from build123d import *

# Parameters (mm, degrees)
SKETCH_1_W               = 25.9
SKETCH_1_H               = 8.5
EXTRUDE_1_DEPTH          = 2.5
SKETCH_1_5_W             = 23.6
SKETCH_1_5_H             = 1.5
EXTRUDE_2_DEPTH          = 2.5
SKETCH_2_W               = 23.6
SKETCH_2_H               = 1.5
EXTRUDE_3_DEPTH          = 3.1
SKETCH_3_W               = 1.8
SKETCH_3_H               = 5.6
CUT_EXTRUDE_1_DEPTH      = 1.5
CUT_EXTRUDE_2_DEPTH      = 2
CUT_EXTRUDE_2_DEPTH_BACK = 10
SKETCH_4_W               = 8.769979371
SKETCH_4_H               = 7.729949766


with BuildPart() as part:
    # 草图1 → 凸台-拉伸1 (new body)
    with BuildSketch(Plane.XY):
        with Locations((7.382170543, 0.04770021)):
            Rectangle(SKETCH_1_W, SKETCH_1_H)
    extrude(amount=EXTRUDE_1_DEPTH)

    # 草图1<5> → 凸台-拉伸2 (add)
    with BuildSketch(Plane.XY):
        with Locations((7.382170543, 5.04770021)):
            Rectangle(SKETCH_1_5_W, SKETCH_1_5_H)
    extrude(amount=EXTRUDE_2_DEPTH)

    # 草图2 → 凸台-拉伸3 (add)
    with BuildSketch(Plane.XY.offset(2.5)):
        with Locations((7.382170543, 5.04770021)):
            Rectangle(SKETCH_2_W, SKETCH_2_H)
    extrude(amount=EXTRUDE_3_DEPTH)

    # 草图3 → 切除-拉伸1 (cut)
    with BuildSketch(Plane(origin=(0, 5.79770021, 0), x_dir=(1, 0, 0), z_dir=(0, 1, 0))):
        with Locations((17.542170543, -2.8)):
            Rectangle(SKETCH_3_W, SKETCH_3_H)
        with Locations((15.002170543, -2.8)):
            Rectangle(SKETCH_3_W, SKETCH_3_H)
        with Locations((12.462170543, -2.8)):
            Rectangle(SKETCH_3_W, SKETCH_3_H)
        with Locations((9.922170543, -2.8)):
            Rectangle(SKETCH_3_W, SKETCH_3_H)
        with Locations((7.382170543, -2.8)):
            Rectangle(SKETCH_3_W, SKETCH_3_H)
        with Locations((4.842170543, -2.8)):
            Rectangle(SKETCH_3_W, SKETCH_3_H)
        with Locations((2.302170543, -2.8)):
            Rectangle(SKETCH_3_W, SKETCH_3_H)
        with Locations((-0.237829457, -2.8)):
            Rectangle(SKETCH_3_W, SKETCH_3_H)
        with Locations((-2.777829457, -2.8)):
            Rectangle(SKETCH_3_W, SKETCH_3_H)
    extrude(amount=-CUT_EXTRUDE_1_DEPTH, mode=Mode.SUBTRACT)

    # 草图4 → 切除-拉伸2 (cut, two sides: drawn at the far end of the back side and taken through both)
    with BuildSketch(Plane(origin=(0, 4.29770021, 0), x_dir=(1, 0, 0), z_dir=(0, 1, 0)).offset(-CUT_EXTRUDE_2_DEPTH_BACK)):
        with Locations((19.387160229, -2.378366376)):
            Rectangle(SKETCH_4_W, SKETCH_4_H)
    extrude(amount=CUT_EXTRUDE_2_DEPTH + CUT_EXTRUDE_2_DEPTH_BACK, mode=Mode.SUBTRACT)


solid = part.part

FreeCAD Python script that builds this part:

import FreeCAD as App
import Part
import Sketcher
Q = App.Units.Quantity

doc = App.newDocument("Part")
params = doc.addObject("Spreadsheet::Sheet", "Params")
for row, (alias, value) in enumerate([
    ("sketch1_width", "25.9 mm"),
    ("sketch1_height", "8.5 mm"),
    ("pad1_length", "2.5 mm"),
    ("sketch2_width", "23.6 mm"),
    ("sketch2_height", "1.5 mm"),
    ("pad2_length", "2.5 mm"),
    ("sketch3_width", "23.6 mm"),
    ("sketch3_height", "1.5 mm"),
    ("pad3_length", "3.1 mm"),
    ("sketch4_width", "1.8 mm"),
    ("sketch4_height", "5.6 mm"),
    ("pocket1_length", "1.5 mm"),
], start=1):
    params.set(f"A{row}", alias)
    params.set(f"B{row}", "=" + value)
    params.setAlias(f"B{row}", alias)

body = doc.addObject("PartDesign::Body", "Body")

# Sketch on XY plane
sketch1 = body.newObject("Sketcher::SketchObject", "Sketch")
sketch1.AttachmentSupport = (doc.getObject("XY_Plane"), [""])
sketch1.MapMode = "FlatFace"
sketch1.addGeometry(Part.LineSegment(App.Vector(-5.567829, 4.2977, 0), App.Vector(-5.567829, -4.2023, 0)), False)
sketch1.addGeometry(Part.LineSegment(App.Vector(-5.567829, -4.2023, 0), App.Vector(20.332171, -4.2023, 0)), False)
sketch1.addGeometry(Part.LineSegment(App.Vector(20.332171, -4.2023, 0), App.Vector(20.332171, 4.2977, 0)), False)
sketch1.addGeometry(Part.LineSegment(App.Vector(20.332171, 4.2977, 0), App.Vector(-5.567829, 4.2977, 0)), False)
sketch1.addConstraint(Sketcher.Constraint("Coincident", 0, 2, 1, 1))
sketch1.addConstraint(Sketcher.Constraint("Coincident", 1, 2, 2, 1))
sketch1.addConstraint(Sketcher.Constraint("Coincident", 2, 2, 3, 1))
sketch1.addConstraint(Sketcher.Constraint("Coincident", 3, 2, 0, 1))
sketch1.addConstraint(Sketcher.Constraint("Vertical", 0))
sketch1.addConstraint(Sketcher.Constraint("Horizontal", 1))
sketch1.addConstraint(Sketcher.Constraint("Vertical", 2))
sketch1.addConstraint(Sketcher.Constraint("Horizontal", 3))
sketch1.addConstraint(Sketcher.Constraint("DistanceX", 1, 1, 1, 2, Q("25.9 mm")))
sketch1.addConstraint(Sketcher.Constraint("DistanceY", 0, 2, 0, 1, Q("8.5 mm")))
sketch1.addConstraint(Sketcher.Constraint("DistanceY", 0, 2, -1, 1, Q("4.2023 mm")))
sketch1.addConstraint(Sketcher.Constraint("DistanceX", 0, 2, -1, 1, Q("5.567829 mm")))
sketch1.setExpression("Constraints[8]", "Params.sketch1_width")
sketch1.setExpression("Constraints[9]", "Params.sketch1_height")
pad1 = body.newObject("PartDesign::Pad", "Pad")
pad1.Profile = sketch1
pad1.setExpression("Length", "Params.pad1_length")

# Sketch on XY plane
sketch2 = body.newObject("Sketcher::SketchObject", "Sketch001")
sketch2.AttachmentSupport = (doc.getObject("XY_Plane"), [""])
sketch2.MapMode = "FlatFace"
sketch2.addGeometry(Part.LineSegment(App.Vector(-4.417829, 5.7977, 0), App.Vector(-4.417829, 4.2977, 0)), False)
sketch2.addGeometry(Part.LineSegment(App.Vector(-4.417829, 4.2977, 0), App.Vector(19.182171, 4.2977, 0)), False)
sketch2.addGeometry(Part.LineSegment(App.Vector(19.182171, 4.2977, 0), App.Vector(19.182171, 5.7977, 0)), False)
sketch2.addGeometry(Part.LineSegment(App.Vector(19.182171, 5.7977, 0), App.Vector(-4.417829, 5.7977, 0)), False)
sketch2.addConstraint(Sketcher.Constraint("Coincident", 0, 2, 1, 1))
sketch2.addConstraint(Sketcher.Constraint("Coincident", 1, 2, 2, 1))
sketch2.addConstraint(Sketcher.Constraint("Coincident", 2, 2, 3, 1))
sketch2.addConstraint(Sketcher.Constraint("Coincident", 3, 2, 0, 1))
sketch2.addConstraint(Sketcher.Constraint("Vertical", 0))
sketch2.addConstraint(Sketcher.Constraint("Horizontal", 1))
sketch2.addConstraint(Sketcher.Constraint("Vertical", 2))
sketch2.addConstraint(Sketcher.Constraint("Horizontal", 3))
sketch2.addConstraint(Sketcher.Constraint("DistanceX", 1, 1, 1, 2, Q("23.6 mm")))
sketch2.addConstraint(Sketcher.Constraint("DistanceY", 0, 2, 0, 1, Q("1.5 mm")))
sketch2.addConstraint(Sketcher.Constraint("DistanceY", -1, 1, 0, 2, Q("4.2977 mm")))
sketch2.addConstraint(Sketcher.Constraint("DistanceX", 0, 2, -1, 1, Q("4.417829 mm")))
sketch2.setExpression("Constraints[8]", "Params.sketch2_width")
sketch2.setExpression("Constraints[9]", "Params.sketch2_height")
pad2 = body.newObject("PartDesign::Pad", "Pad001")
pad2.Profile = sketch2
pad2.setExpression("Length", "Params.pad2_length")

# Sketch on XY plane
sketch3 = body.newObject("Sketcher::SketchObject", "Sketch002")
sketch3.AttachmentSupport = (doc.getObject("XY_Plane"), [""])
sketch3.MapMode = "FlatFace"
sketch3.AttachmentOffset = App.Placement(App.Vector(0, 0, 2.5), App.Rotation())
sketch3.addGeometry(Part.LineSegment(App.Vector(-4.417829, 5.7977, 0), App.Vector(-4.417829, 4.2977, 0)), False)
sketch3.addGeometry(Part.LineSegment(App.Vector(-4.417829, 4.2977, 0), App.Vector(19.182171, 4.2977, 0)), False)
sketch3.addGeometry(Part.LineSegment(App.Vector(19.182171, 4.2977, 0), App.Vector(19.182171, 5.7977, 0)), False)
sketch3.addGeometry(Part.LineSegment(App.Vector(19.182171, 5.7977, 0), App.Vector(-4.417829, 5.7977, 0)), False)
sketch3.addConstraint(Sketcher.Constraint("Coincident", 0, 2, 1, 1))
sketch3.addConstraint(Sketcher.Constraint("Coincident", 1, 2, 2, 1))
sketch3.addConstraint(Sketcher.Constraint("Coincident", 2, 2, 3, 1))
sketch3.addConstraint(Sketcher.Constraint("Coincident", 3, 2, 0, 1))
sketch3.addConstraint(Sketcher.Constraint("Vertical", 0))
sketch3.addConstraint(Sketcher.Constraint("Horizontal", 1))
sketch3.addConstraint(Sketcher.Constraint("Vertical", 2))
sketch3.addConstraint(Sketcher.Constraint("Horizontal", 3))
sketch3.addConstraint(Sketcher.Constraint("DistanceX", 1, 1, 1, 2, Q("23.6 mm")))
sketch3.addConstraint(Sketcher.Constraint("DistanceY", 0, 2, 0, 1, Q("1.5 mm")))
sketch3.addConstraint(Sketcher.Constraint("DistanceY", -1, 1, 0, 2, Q("4.2977 mm")))
sketch3.addConstraint(Sketcher.Constraint("DistanceX", 0, 2, -1, 1, Q("4.417829 mm")))
sketch3.setExpression("Constraints[8]", "Params.sketch3_width")
sketch3.setExpression("Constraints[9]", "Params.sketch3_height")
pad3 = body.newObject("PartDesign::Pad", "Pad002")
pad3.Profile = sketch3
pad3.setExpression("Length", "Params.pad3_length")

# Sketch on XZ plane
sketch4 = body.newObject("Sketcher::SketchObject", "Sketch003")
sketch4.AttachmentSupport = (doc.getObject("XZ_Plane"), [""])
sketch4.MapMode = "FlatFace"
sketch4.AttachmentOffset = App.Placement(App.Vector(0, 0, -5.7977), App.Rotation())
sketch4.addGeometry(Part.LineSegment(App.Vector(16.642171, 0, 0), App.Vector(16.642171, 5.6, 0)), False)
sketch4.addGeometry(Part.LineSegment(App.Vector(16.642171, 5.6, 0), App.Vector(18.442171, 5.6, 0)), False)
sketch4.addGeometry(Part.LineSegment(App.Vector(18.442171, 5.6, 0), App.Vector(18.442171, 0, 0)), False)
sketch4.addGeometry(Part.LineSegment(App.Vector(18.442171, 0, 0), App.Vector(16.642171, 0, 0)), False)
sketch4.addGeometry(Part.LineSegment(App.Vector(14.102171, 0, 0), App.Vector(14.102171, 5.6, 0)), False)
sketch4.addGeometry(Part.LineSegment(App.Vector(14.102171, 5.6, 0), App.Vector(15.902171, 5.6, 0)), False)
sketch4.addGeometry(Part.LineSegment(App.Vector(15.902171, 5.6, 0), App.Vector(15.902171, 0, 0)), False)
sketch4.addGeometry(Part.LineSegment(App.Vector(15.902171, 0, 0), App.Vector(14.102171, 0, 0)), False)
sketch4.addGeometry(Part.LineSegment(App.Vector(11.562171, 0, 0), App.Vector(11.562171, 5.6, 0)), False)
sketch4.addGeometry(Part.LineSegment(App.Vector(11.562171, 5.6, 0), App.Vector(13.362171, 5.6, 0)), False)
sketch4.addGeometry(Part.LineSegment(App.Vector(13.362171, 5.6, 0), App.Vector(13.362171, 0, 0)), False)
sketch4.addGeometry(Part.LineSegment(App.Vector(13.362171, 0, 0), App.Vector(11.562171, 0, 0)), False)
sketch4.addGeometry(Part.LineSegment(App.Vector(9.022171, 0, 0), App.Vector(9.022171, 5.6, 0)), False)
sketch4.addGeometry(Part.LineSegment(App.Vector(9.022171, 5.6, 0), App.Vector(10.822171, 5.6, 0)), False)
sketch4.addGeometry(Part.LineSegment(App.Vector(10.822171, 5.6, 0), App.Vector(10.822171, 0, 0)), False)
sketch4.addGeometry(Part.LineSegment(App.Vector(10.822171, 0, 0), App.Vector(9.022171, 0, 0)), False)
sketch4.addGeometry(Part.LineSegment(App.Vector(6.482171, 0, 0), App.Vector(6.482171, 5.6, 0)), False)
sketch4.addGeometry(Part.LineSegment(App.Vector(6.482171, 5.6, 0), App.Vector(8.282171, 5.6, 0)), False)
sketch4.addGeometry(Part.LineSegment(App.Vector(8.282171, 5.6, 0), App.Vector(8.282171, 0, 0)), False)
sketch4.addGeometry(Part.LineSegment(App.Vector(8.282171, 0, 0), App.Vector(6.482171, 0, 0)), False)
sketch4.addGeometry(Part.LineSegment(App.Vector(3.942171, 0, 0), App.Vector(3.942171, 5.6, 0)), False)
sketch4.addGeometry(Part.LineSegment(App.Vector(3.942171, 5.6, 0), App.Vector(5.742171, 5.6, 0)), False)
sketch4.addGeometry(Part.LineSegment(App.Vector(5.742171, 5.6, 0), App.Vector(5.742171, 0, 0)), False)
sketch4.addGeometry(Part.LineSegment(App.Vector(5.742171, 0, 0), App.Vector(3.942171, 0, 0)), False)
sketch4.addGeometry(Part.LineSegment(App.Vector(1.402171, 0, 0), App.Vector(1.402171, 5.6, 0)), False)
sketch4.addGeometry(Part.LineSegment(App.Vector(1.402171, 5.6, 0), App.Vector(3.202171, 5.6, 0)), False)
sketch4.addGeometry(Part.LineSegment(App.Vector(3.202171, 5.6, 0), App.Vector(3.202171, 0, 0)), False)
sketch4.addGeometry(Part.LineSegment(App.Vector(3.202171, 0, 0), App.Vector(1.402171, 0, 0)), False)
sketch4.addGeometry(Part.LineSegment(App.Vector(-1.137829, 0, 0), App.Vector(-1.137829, 5.6, 0)), False)
sketch4.addGeometry(Part.LineSegment(App.Vector(-1.137829, 5.6, 0), App.Vector(0.662171, 5.6, 0)), False)
sketch4.addGeometry(Part.LineSegment(App.Vector(0.662171, 5.6, 0), App.Vector(0.662171, 0, 0)), False)
sketch4.addGeometry(Part.LineSegment(App.Vector(0.662171, 0, 0), App.Vector(-1.137829, 0, 0)), False)
sketch4.addGeometry(Part.LineSegment(App.Vector(-3.677829, 0, 0), App.Vector(-3.677829, 5.6, 0)), False)
sketch4.addGeometry(Part.LineSegment(App.Vector(-3.677829, 5.6, 0), App.Vector(-1.877829, 5.6, 0)), False)
sketch4.addGeometry(Part.LineSegment(App.Vector(-1.877829, 5.6, 0), App.Vector(-1.877829, 0, 0)), False)
sketch4.addGeometry(Part.LineSegment(App.Vector(-1.877829, 0, 0), App.Vector(-3.677829, 0, 0)), False)
sketch4.addConstraint(Sketcher.Constraint("Coincident", 0, 2, 1, 1))
sketch4.addConstraint(Sketcher.Constraint("Coincident", 1, 2, 2, 1))
sketch4.addConstraint(Sketcher.Constraint("Coincident", 2, 2, 3, 1))
sketch4.addConstraint(Sketcher.Constraint("Coincident", 3, 2, 0, 1))
sketch4.addConstraint(Sketcher.Constraint("Coincident", 4, 2, 5, 1))
sketch4.addConstraint(Sketcher.Constraint("Coincident", 5, 2, 6, 1))
sketch4.addConstraint(Sketcher.Constraint("Coincident", 6, 2, 7, 1))
sketch4.addConstraint(Sketcher.Constraint("Coincident", 7, 2, 4, 1))
sketch4.addConstraint(Sketcher.Constraint("Coincident", 8, 2, 9, 1))
sketch4.addConstraint(Sketcher.Constraint("Coincident", 9, 2, 10, 1))
sketch4.addConstraint(Sketcher.Constraint("Coincident", 10, 2, 11, 1))
sketch4.addConstraint(Sketcher.Constraint("Coincident", 11, 2, 8, 1))
sketch4.addConstraint(Sketcher.Constraint("Coincident", 12, 2, 13, 1))
sketch4.addConstraint(Sketcher.Constraint("Coincident", 13, 2, 14, 1))
sketch4.addConstraint(Sketcher.Constraint("Coincident", 14, 2, 15, 1))
sketch4.addConstraint(Sketcher.Constraint("Coincident", 15, 2, 12, 1))
sketch4.addConstraint(Sketcher.Constraint("Coincident", 16, 2, 17, 1))
sketch4.addConstraint(Sketcher.Constraint("Coincident", 17, 2, 18, 1))
sketch4.addConstraint(Sketcher.Constraint("Coincident", 18, 2, 19, 1))
sketch4.addConstraint(Sketcher.Constraint("Coincident", 19, 2, 16, 1))
sketch4.addConstraint(Sketcher.Constraint("Coincident", 20, 2, 21, 1))
sketch4.addConstraint(Sketcher.Constraint("Coincident", 21, 2, 22, 1))
sketch4.addConstraint(Sketcher.Constraint("Coincident", 22, 2, 23, 1))
sketch4.addConstraint(Sketcher.Constraint("Coincident", 23, 2, 20, 1))
sketch4.addConstraint(Sketcher.Constraint("Coincident", 24, 2, 25, 1))
sketch4.addConstraint(Sketcher.Constraint("Coincident", 25, 2, 26, 1))
sketch4.addConstraint(Sketcher.Constraint("Coincident", 26, 2, 27, 1))
sketch4.addConstraint(Sketcher.Constraint("Coincident", 27, 2, 24, 1))
sketch4.addConstraint(Sketcher.Constraint("Coincident", 28, 2, 29, 1))
sketch4.addConstraint(Sketcher.Constraint("Coincident", 29, 2, 30, 1))
sketch4.addConstraint(Sketcher.Constraint("Coincident", 30, 2, 31, 1))
sketch4.addConstraint(Sketcher.Constraint("Coincident", 31, 2, 28, 1))
sketch4.addConstraint(Sketcher.Constraint("Coincident", 32, 2, 33, 1))
sketch4.addConstraint(Sketcher.Constraint("Coincident", 33, 2, 34, 1))
sketch4.addConstraint(Sketcher.Constraint("Coincident", 34, 2, 35, 1))
sketch4.addConstraint(Sketcher.Constraint("Coincident", 35, 2, 32, 1))
sketch4.addConstraint(Sketcher.Constraint("Vertical", 0))
sketch4.addConstraint(Sketcher.Constraint("Horizontal", 1))
sketch4.addConstraint(Sketcher.Constraint("Vertical", 2))
sketch4.addConstraint(Sketcher.Constraint("Horizontal", 3))
sketch4.addConstraint(Sketcher.Constraint("Vertical", 4))
sketch4.addConstraint(Sketcher.Constraint("Horizontal", 5))
sketch4.addConstraint(Sketcher.Constraint("Vertical", 6))
sketch4.addConstraint(Sketcher.Constraint("Horizontal", 7))
sketch4.addConstraint(Sketcher.Constraint("Vertical", 8))
sketch4.addConstraint(Sketcher.Constraint("Horizontal", 9))
sketch4.addConstraint(Sketcher.Constraint("Vertical", 10))
sketch4.addConstraint(Sketcher.Constraint("Horizontal", 11))
sketch4.addConstraint(Sketcher.Constraint("Vertical", 12))
sketch4.addConstraint(Sketcher.Constraint("Horizontal", 13))
sketch4.addConstraint(Sketcher.Constraint("Vertical", 14))
sketch4.addConstraint(Sketcher.Constraint("Horizontal", 15))
sketch4.addConstraint(Sketcher.Constraint("Vertical", 16))
sketch4.addConstraint(Sketcher.Constraint("Horizontal", 17))
sketch4.addConstraint(Sketcher.Constraint("Vertical", 18))
sketch4.addConstraint(Sketcher.Constraint("Horizontal", 19))
sketch4.addConstraint(Sketcher.Constraint("Vertical", 20))
sketch4.addConstraint(Sketcher.Constraint("Horizontal", 21))
sketch4.addConstraint(Sketcher.Constraint("Vertical", 22))
sketch4.addConstraint(Sketcher.Constraint("Horizontal", 23))
sketch4.addConstraint(Sketcher.Constraint("Vertical", 24))
sketch4.addConstraint(Sketcher.Constraint("Horizontal", 25))
sketch4.addConstraint(Sketcher.Constraint("Vertical", 26))
sketch4.addConstraint(Sketcher.Constraint("Horizontal", 27))
sketch4.addConstraint(Sketcher.Constraint("Vertical", 28))
sketch4.addConstraint(Sketcher.Constraint("Horizontal", 29))
sketch4.addConstraint(Sketcher.Constraint("Vertical", 30))
sketch4.addConstraint(Sketcher.Constraint("Horizontal", 31))
sketch4.addConstraint(Sketcher.Constraint("Vertical", 32))
sketch4.addConstraint(Sketcher.Constraint("Horizontal", 33))
sketch4.addConstraint(Sketcher.Constraint("Vertical", 34))
sketch4.addConstraint(Sketcher.Constraint("Horizontal", 35))
sketch4.addConstraint(Sketcher.Constraint("PointOnObject", 2, 2, -1))
sketch4.addConstraint(Sketcher.Constraint("PointOnObject", 6, 2, -1))
sketch4.addConstraint(Sketcher.Constraint("PointOnObject", 10, 2, -1))
sketch4.addConstraint(Sketcher.Constraint("PointOnObject", 14, 2, -1))
sketch4.addConstraint(Sketcher.Constraint("PointOnObject", 18, 2, -1))
sketch4.addConstraint(Sketcher.Constraint("PointOnObject", 22, 2, -1))
sketch4.addConstraint(Sketcher.Constraint("PointOnObject", 26, 2, -1))
sketch4.addConstraint(Sketcher.Constraint("PointOnObject", 30, 2, -1))
sketch4.addConstraint(Sketcher.Constraint("PointOnObject", 34, 2, -1))
sketch4.addConstraint(Sketcher.Constraint("Horizontal", 1, 2, 4, 2))
sketch4.addConstraint(Sketcher.Constraint("Horizontal", 5, 2, 8, 2))
sketch4.addConstraint(Sketcher.Constraint("Horizontal", 9, 2, 12, 2))
sketch4.addConstraint(Sketcher.Constraint("Horizontal", 13, 2, 16, 2))
sketch4.addConstraint(Sketcher.Constraint("Horizontal", 17, 2, 20, 2))
sketch4.addConstraint(Sketcher.Constraint("Horizontal", 21, 2, 24, 2))
sketch4.addConstraint(Sketcher.Constraint("Horizontal", 25, 2, 28, 2))
sketch4.addConstraint(Sketcher.Constraint("Horizontal", 29, 2, 32, 2))
sketch4.addConstraint(Sketcher.Constraint("Equal", 3, 5))
sketch4.addConstraint(Sketcher.Constraint("Equal", 7, 9))
sketch4.addConstraint(Sketcher.Constraint("Equal", 11, 13))
sketch4.addConstraint(Sketcher.Constraint("Equal", 15, 17))
sketch4.addConstraint(Sketcher.Constraint("Equal", 19, 21))
sketch4.addConstraint(Sketcher.Constraint("Equal", 23, 25))
sketch4.addConstraint(Sketcher.Constraint("Equal", 27, 29))
sketch4.addConstraint(Sketcher.Constraint("Equal", 31, 33))
sketch4.addConstraint(Sketcher.Constraint("DistanceX", 1, 1, 1, 2, Q("1.8 mm")))
sketch4.addConstraint(Sketcher.Constraint("DistanceY", 0, 1, 0, 2, Q("5.6 mm")))
sketch4.addConstraint(Sketcher.Constraint("DistanceX", 4, 2, 0, 2, Q("2.54 mm")))
sketch4.addConstraint(Sketcher.Constraint("DistanceX", 8, 2, 4, 2, Q("2.54 mm")))
sketch4.addConstraint(Sketcher.Constraint("DistanceX", 12, 2, 8, 2, Q("2.54 mm")))
sketch4.addConstraint(Sketcher.Constraint("DistanceX", 16, 2, 12, 2, Q("2.54 mm")))
sketch4.addConstraint(Sketcher.Constraint("DistanceX", 20, 2, 16, 2, Q("2.54 mm")))
sketch4.addConstraint(Sketcher.Constraint("DistanceX", 24, 2, 20, 2, Q("2.54 mm")))
sketch4.addConstraint(Sketcher.Constraint("DistanceX", 28, 2, 24, 2, Q("2.54 mm")))
sketch4.addConstraint(Sketcher.Constraint("DistanceX", 32, 2, 28, 2, Q("2.54 mm")))
sketch4.addConstraint(Sketcher.Constraint("DistanceX", -1, 1, 0, 2, Q("16.642171 mm")))
sketch4.setExpression("Constraints[97]", "Params.sketch4_width")
sketch4.setExpression("Constraints[98]", "Params.sketch4_height")
pocket1 = body.newObject("PartDesign::Pocket", "Pocket")
pocket1.Profile = sketch4
pocket1.setExpression("Length", "Params.pocket1_length")
pocket1.Reversed = True

# Sketch on XZ plane
sketch5 = body.newObject("Sketcher::SketchObject", "Sketch004")
sketch5.AttachmentSupport = (doc.getObject("XZ_Plane"), [""])
sketch5.MapMode = "FlatFace"
sketch5.AttachmentOffset = App.Placement(App.Vector(0, 0, -4.2977), App.Rotation())
sketch5.addGeometry(Part.LineSegment(App.Vector(15.002171, -1.486609, 0), App.Vector(15.002171, 6.243341, 0)), False)
sketch5.addGeometry(Part.LineSegment(App.Vector(15.002171, 6.243341, 0), App.Vector(23.77215, 6.243341, 0)), False)
sketch5.addGeometry(Part.LineSegment(App.Vector(23.77215, 6.243341, 0), App.Vector(23.77215, -1.486609, 0)), False)
sketch5.addGeometry(Part.LineSegment(App.Vector(23.77215, -1.486609, 0), App.Vector(15.002171, -1.486609, 0)), False)
sketch5.addConstraint(Sketcher.Constraint("Coincident", 0, 2, 1, 1))
sketch5.addConstraint(Sketcher.Constraint("Coincident", 1, 2, 2, 1))
sketch5.addConstraint(Sketcher.Constraint("Coincident", 2, 2, 3, 1))
sketch5.addConstraint(Sketcher.Constraint("Coincident", 3, 2, 0, 1))
sketch5.addConstraint(Sketcher.Constraint("Vertical", 0))
sketch5.addConstraint(Sketcher.Constraint("Horizontal", 1))
sketch5.addConstraint(Sketcher.Constraint("Vertical", 2))
sketch5.addConstraint(Sketcher.Constraint("Horizontal", 3))
sketch5.addConstraint(Sketcher.Constraint("DistanceX", 1, 1, 1, 2, Q("8.769979 mm")))
sketch5.addConstraint(Sketcher.Constraint("DistanceY", 0, 1, 0, 2, Q("7.72995 mm")))
sketch5.addConstraint(Sketcher.Constraint("DistanceX", -1, 1, 0, 2, Q("15.002171 mm")))
sketch5.addConstraint(Sketcher.Constraint("DistanceY", -1, 1, 0, 2, Q("6.243341 mm")))
pocket2 = body.newObject("PartDesign::Pocket", "Pocket001")
pocket2.Profile = sketch5
pocket2.Type = "ThroughAll"
pocket2.Midplane = True

doc.recompute()
